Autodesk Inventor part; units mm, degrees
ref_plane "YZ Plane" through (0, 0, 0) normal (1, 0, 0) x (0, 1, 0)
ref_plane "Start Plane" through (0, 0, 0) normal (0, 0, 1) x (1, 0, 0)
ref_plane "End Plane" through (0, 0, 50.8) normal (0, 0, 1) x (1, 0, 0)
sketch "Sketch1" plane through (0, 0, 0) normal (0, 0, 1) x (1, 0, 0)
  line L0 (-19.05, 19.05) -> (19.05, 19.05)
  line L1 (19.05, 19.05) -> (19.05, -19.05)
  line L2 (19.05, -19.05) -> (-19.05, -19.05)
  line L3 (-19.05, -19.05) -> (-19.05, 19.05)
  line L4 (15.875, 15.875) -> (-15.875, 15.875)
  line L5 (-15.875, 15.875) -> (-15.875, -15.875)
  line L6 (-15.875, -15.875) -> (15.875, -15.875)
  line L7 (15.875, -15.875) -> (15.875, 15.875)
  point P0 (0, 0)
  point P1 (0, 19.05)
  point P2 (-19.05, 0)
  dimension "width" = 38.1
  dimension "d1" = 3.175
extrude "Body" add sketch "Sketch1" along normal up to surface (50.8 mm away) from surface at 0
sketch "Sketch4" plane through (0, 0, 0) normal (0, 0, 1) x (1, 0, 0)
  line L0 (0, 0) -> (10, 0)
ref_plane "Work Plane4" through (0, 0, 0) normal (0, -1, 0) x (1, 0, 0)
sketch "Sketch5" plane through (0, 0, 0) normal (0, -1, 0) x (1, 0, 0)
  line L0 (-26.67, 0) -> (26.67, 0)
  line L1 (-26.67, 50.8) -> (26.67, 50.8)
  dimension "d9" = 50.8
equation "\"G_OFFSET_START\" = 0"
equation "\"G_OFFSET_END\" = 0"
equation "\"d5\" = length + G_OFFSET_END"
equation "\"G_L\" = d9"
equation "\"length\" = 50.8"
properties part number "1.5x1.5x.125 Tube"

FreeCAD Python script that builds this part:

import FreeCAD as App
import Part
import Sketcher
Q = App.Units.Quantity

doc = App.newDocument("Part")
body = doc.addObject("PartDesign::Body", "Body")

# Sketch on XY plane
sketch1 = body.newObject("Sketcher::SketchObject", "Sketch")
sketch1.AttachmentSupport = (doc.getObject("XY_Plane"), [""])
sketch1.MapMode = "FlatFace"
sketch1.addGeometry([
    Part.LineSegment(App.Vector(19, 19, 0), App.Vector(-19, 19, 0)),  # 0
    Part.LineSegment(App.Vector(-19, 19, 0), App.Vector(-19, -19, 0)),  # 1
    Part.LineSegment(App.Vector(-19, -19, 0), App.Vector(19, -19, 0)),  # 2
    Part.LineSegment(App.Vector(19, -19, 0), App.Vector(19, 19, 0)),  # 3
    Part.LineSegment(App.Vector(-16, 16, 0), App.Vector(16, 16, 0)),  # 4
    Part.LineSegment(App.Vector(16, 16, 0), App.Vector(16, -16, 0)),  # 5
    Part.LineSegment(App.Vector(16, -16, 0), App.Vector(-16, -16, 0)),  # 6
    Part.LineSegment(App.Vector(-16, -16, 0), App.Vector(-16, 16, 0)),  # 7
], False)
sketch1.addConstraint([
    Sketcher.Constraint("Coincident", 0, 2, 1, 1),
    Sketcher.Constraint("Coincident", 1, 2, 2, 1),
    Sketcher.Constraint("Coincident", 2, 2, 3, 1),
    Sketcher.Constraint("Coincident", 3, 2, 0, 1),
    Sketcher.Constraint("Coincident", 4, 2, 5, 1),
    Sketcher.Constraint("Coincident", 5, 2, 6, 1),
    Sketcher.Constraint("Coincident", 6, 2, 7, 1),
    Sketcher.Constraint("Coincident", 7, 2, 4, 1),
    Sketcher.Constraint("Horizontal", 0),
    Sketcher.Constraint("Vertical", 1),
    Sketcher.Constraint("Horizontal", 2),
    Sketcher.Constraint("Vertical", 3),
    Sketcher.Constraint("Horizontal", 4),
    Sketcher.Constraint("Vertical", 5),
    Sketcher.Constraint("Horizontal", 6),
    Sketcher.Constraint("Vertical", 7),
    Sketcher.Constraint("Symmetric", 0, 2, 2, 2, -1, 1),
    Sketcher.Constraint("Symmetric", 4, 2, 6, 2, -1, 1),
    Sketcher.Constraint("Equal", 2, 1),
    Sketcher.Constraint("Equal", 6, 5),
    Sketcher.Constraint("DistanceX", 0, 2, 0, 1, Q("1.5 in")),
    Sketcher.Constraint("DistanceX", 4, 2, 3, 2, Q("0.125 in")),
])
pad1 = body.newObject("PartDesign::Pad", "Pad")
pad1.Profile = sketch1
pad1.Length = Q("2 in")

doc.recompute()
